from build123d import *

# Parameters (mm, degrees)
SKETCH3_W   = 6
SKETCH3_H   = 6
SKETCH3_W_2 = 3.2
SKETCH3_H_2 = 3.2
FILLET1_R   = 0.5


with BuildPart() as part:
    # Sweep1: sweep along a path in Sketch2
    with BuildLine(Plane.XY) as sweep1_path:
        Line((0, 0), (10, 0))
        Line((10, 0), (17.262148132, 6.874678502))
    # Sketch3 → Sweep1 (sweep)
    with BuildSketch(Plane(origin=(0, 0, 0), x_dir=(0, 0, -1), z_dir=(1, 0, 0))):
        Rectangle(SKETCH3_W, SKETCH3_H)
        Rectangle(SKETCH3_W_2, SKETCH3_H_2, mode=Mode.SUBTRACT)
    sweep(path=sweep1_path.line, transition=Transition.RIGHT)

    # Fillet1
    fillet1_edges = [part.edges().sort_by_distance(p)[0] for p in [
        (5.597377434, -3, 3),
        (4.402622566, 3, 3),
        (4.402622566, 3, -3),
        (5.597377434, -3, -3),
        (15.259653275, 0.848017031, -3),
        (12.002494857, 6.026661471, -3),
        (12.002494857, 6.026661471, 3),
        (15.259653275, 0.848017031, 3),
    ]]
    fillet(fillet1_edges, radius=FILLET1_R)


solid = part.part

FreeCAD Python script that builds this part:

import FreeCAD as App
import Part
import Sketcher
Q = App.Units.Quantity


def edges_at(feature, points):
    """Names of the edges that pass closest to the given points."""
    edges = feature.Shape.Edges
    near = lambda p: min(range(len(edges)), key=lambda i: edges[i].distToShape(Part.Vertex(*p))[0])
    return sorted({f"Edge{near(p) + 1}" for p in points})


def add_polygon(sketch, points):
    """Adds a closed chain of lines whose ends are joined by coincident constraints."""
    first, n = sketch.GeometryCount, len(points)
    for a, b in zip(points, points[1:] + points[:1]):
        sketch.addGeometry(Part.LineSegment(App.Vector(*a, 0), App.Vector(*b, 0)), False)
    for i in range(n):
        sketch.addConstraint(Sketcher.Constraint("Coincident", first + i, 2, first + (i + 1) % n, 1))

doc = App.newDocument("Part")
body = doc.addObject("PartDesign::Body", "Body")

# Sketch on YZ plane
sketch1 = body.newObject("Sketcher::SketchObject", "Sketch")
sketch1.AttachmentSupport = (doc.getObject("YZ_Plane"), [""])
sketch1.MapMode = "FlatFace"
add_polygon(sketch1, [(3, 3), (-3, 3), (-3, -3), (3, -3)])  # lines 0-3
add_polygon(sketch1, [(-1.6, -1.6), (-1.6, 1.6), (1.6, 1.6), (1.6, -1.6)])  # lines 4-7
sketch1.addConstraint(Sketcher.Constraint("Horizontal", 0))
sketch1.addConstraint(Sketcher.Constraint("Vertical", 1))
sketch1.addConstraint(Sketcher.Constraint("Horizontal", 2))
sketch1.addConstraint(Sketcher.Constraint("Vertical", 3))
sketch1.addConstraint(Sketcher.Constraint("Vertical", 4))
sketch1.addConstraint(Sketcher.Constraint("Horizontal", 5))
sketch1.addConstraint(Sketcher.Constraint("Vertical", 6))
sketch1.addConstraint(Sketcher.Constraint("Horizontal", 7))
sketch1.addConstraint(Sketcher.Constraint("Symmetric", 0, 2, 2, 2, -1, 1))
sketch1.addConstraint(Sketcher.Constraint("Symmetric", 4, 2, 6, 2, -1, 1))
sketch1.addConstraint(Sketcher.Constraint("Equal", 2, 1))
sketch1.addConstraint(Sketcher.Constraint("Equal", 7, 4))
sketch1.addConstraint(Sketcher.Constraint("DistanceX", 0, 2, 0, 1, Q("6 mm")))
sketch1.addConstraint(Sketcher.Constraint("DistanceX", 5, 1, 5, 2, Q("3.2 mm")))

# Sketch on XY plane
sketch2 = body.newObject("Sketcher::SketchObject", "Sketch001")
sketch2.AttachmentSupport = (doc.getObject("XY_Plane"), [""])
sketch2.MapMode = "FlatFace"
sketch2.addGeometry(Part.LineSegment(App.Vector(0, 0, 0), App.Vector(10, 0, 0)), False)
sketch2.addGeometry(Part.LineSegment(App.Vector(10, 0, 0), App.Vector(17.262148, 6.874679, 0)), False)
sketch2.addConstraint(Sketcher.Constraint("Coincident", 0, 2, 1, 1))
sketch2.addConstraint(Sketcher.Constraint("Horizontal", 0))
sketch2.addConstraint(Sketcher.Constraint("Coincident", 0, 1, -1, 1))
sketch2.addConstraint(Sketcher.Constraint("DistanceX", 0, 1, 0, 2, Q("10 mm")))
sketch2.addConstraint(Sketcher.Constraint("Distance", 1, Q("10 mm")))
sketch2.addConstraint(Sketcher.Constraint("Angle", 1, Q("43.43 deg")))
doc.recompute()

additivepipe = body.newObject("PartDesign::AdditivePipe", "AdditivePipe")
additivepipe.Profile = sketch1
additivepipe.Spine = (sketch2, ["Edge1", "Edge2"])
additivepipe.Transition = "Right corner"
doc.recompute()

fillet = body.newObject("PartDesign::Fillet", "Fillet")
fillet.Base = (additivepipe, edges_at(additivepipe, [
    (5.597, -3, 3),
    (4.403, 3, 3),
    (4.403, 3, -3),
    (5.597, -3, -3),
    (15.26, 0.848, -3),
    (12.002, 6.027, -3),
    (12.002, 6.027, 3),
    (15.26, 0.848, 3),
]))
fillet.Radius = 0.5

doc.recompute()
